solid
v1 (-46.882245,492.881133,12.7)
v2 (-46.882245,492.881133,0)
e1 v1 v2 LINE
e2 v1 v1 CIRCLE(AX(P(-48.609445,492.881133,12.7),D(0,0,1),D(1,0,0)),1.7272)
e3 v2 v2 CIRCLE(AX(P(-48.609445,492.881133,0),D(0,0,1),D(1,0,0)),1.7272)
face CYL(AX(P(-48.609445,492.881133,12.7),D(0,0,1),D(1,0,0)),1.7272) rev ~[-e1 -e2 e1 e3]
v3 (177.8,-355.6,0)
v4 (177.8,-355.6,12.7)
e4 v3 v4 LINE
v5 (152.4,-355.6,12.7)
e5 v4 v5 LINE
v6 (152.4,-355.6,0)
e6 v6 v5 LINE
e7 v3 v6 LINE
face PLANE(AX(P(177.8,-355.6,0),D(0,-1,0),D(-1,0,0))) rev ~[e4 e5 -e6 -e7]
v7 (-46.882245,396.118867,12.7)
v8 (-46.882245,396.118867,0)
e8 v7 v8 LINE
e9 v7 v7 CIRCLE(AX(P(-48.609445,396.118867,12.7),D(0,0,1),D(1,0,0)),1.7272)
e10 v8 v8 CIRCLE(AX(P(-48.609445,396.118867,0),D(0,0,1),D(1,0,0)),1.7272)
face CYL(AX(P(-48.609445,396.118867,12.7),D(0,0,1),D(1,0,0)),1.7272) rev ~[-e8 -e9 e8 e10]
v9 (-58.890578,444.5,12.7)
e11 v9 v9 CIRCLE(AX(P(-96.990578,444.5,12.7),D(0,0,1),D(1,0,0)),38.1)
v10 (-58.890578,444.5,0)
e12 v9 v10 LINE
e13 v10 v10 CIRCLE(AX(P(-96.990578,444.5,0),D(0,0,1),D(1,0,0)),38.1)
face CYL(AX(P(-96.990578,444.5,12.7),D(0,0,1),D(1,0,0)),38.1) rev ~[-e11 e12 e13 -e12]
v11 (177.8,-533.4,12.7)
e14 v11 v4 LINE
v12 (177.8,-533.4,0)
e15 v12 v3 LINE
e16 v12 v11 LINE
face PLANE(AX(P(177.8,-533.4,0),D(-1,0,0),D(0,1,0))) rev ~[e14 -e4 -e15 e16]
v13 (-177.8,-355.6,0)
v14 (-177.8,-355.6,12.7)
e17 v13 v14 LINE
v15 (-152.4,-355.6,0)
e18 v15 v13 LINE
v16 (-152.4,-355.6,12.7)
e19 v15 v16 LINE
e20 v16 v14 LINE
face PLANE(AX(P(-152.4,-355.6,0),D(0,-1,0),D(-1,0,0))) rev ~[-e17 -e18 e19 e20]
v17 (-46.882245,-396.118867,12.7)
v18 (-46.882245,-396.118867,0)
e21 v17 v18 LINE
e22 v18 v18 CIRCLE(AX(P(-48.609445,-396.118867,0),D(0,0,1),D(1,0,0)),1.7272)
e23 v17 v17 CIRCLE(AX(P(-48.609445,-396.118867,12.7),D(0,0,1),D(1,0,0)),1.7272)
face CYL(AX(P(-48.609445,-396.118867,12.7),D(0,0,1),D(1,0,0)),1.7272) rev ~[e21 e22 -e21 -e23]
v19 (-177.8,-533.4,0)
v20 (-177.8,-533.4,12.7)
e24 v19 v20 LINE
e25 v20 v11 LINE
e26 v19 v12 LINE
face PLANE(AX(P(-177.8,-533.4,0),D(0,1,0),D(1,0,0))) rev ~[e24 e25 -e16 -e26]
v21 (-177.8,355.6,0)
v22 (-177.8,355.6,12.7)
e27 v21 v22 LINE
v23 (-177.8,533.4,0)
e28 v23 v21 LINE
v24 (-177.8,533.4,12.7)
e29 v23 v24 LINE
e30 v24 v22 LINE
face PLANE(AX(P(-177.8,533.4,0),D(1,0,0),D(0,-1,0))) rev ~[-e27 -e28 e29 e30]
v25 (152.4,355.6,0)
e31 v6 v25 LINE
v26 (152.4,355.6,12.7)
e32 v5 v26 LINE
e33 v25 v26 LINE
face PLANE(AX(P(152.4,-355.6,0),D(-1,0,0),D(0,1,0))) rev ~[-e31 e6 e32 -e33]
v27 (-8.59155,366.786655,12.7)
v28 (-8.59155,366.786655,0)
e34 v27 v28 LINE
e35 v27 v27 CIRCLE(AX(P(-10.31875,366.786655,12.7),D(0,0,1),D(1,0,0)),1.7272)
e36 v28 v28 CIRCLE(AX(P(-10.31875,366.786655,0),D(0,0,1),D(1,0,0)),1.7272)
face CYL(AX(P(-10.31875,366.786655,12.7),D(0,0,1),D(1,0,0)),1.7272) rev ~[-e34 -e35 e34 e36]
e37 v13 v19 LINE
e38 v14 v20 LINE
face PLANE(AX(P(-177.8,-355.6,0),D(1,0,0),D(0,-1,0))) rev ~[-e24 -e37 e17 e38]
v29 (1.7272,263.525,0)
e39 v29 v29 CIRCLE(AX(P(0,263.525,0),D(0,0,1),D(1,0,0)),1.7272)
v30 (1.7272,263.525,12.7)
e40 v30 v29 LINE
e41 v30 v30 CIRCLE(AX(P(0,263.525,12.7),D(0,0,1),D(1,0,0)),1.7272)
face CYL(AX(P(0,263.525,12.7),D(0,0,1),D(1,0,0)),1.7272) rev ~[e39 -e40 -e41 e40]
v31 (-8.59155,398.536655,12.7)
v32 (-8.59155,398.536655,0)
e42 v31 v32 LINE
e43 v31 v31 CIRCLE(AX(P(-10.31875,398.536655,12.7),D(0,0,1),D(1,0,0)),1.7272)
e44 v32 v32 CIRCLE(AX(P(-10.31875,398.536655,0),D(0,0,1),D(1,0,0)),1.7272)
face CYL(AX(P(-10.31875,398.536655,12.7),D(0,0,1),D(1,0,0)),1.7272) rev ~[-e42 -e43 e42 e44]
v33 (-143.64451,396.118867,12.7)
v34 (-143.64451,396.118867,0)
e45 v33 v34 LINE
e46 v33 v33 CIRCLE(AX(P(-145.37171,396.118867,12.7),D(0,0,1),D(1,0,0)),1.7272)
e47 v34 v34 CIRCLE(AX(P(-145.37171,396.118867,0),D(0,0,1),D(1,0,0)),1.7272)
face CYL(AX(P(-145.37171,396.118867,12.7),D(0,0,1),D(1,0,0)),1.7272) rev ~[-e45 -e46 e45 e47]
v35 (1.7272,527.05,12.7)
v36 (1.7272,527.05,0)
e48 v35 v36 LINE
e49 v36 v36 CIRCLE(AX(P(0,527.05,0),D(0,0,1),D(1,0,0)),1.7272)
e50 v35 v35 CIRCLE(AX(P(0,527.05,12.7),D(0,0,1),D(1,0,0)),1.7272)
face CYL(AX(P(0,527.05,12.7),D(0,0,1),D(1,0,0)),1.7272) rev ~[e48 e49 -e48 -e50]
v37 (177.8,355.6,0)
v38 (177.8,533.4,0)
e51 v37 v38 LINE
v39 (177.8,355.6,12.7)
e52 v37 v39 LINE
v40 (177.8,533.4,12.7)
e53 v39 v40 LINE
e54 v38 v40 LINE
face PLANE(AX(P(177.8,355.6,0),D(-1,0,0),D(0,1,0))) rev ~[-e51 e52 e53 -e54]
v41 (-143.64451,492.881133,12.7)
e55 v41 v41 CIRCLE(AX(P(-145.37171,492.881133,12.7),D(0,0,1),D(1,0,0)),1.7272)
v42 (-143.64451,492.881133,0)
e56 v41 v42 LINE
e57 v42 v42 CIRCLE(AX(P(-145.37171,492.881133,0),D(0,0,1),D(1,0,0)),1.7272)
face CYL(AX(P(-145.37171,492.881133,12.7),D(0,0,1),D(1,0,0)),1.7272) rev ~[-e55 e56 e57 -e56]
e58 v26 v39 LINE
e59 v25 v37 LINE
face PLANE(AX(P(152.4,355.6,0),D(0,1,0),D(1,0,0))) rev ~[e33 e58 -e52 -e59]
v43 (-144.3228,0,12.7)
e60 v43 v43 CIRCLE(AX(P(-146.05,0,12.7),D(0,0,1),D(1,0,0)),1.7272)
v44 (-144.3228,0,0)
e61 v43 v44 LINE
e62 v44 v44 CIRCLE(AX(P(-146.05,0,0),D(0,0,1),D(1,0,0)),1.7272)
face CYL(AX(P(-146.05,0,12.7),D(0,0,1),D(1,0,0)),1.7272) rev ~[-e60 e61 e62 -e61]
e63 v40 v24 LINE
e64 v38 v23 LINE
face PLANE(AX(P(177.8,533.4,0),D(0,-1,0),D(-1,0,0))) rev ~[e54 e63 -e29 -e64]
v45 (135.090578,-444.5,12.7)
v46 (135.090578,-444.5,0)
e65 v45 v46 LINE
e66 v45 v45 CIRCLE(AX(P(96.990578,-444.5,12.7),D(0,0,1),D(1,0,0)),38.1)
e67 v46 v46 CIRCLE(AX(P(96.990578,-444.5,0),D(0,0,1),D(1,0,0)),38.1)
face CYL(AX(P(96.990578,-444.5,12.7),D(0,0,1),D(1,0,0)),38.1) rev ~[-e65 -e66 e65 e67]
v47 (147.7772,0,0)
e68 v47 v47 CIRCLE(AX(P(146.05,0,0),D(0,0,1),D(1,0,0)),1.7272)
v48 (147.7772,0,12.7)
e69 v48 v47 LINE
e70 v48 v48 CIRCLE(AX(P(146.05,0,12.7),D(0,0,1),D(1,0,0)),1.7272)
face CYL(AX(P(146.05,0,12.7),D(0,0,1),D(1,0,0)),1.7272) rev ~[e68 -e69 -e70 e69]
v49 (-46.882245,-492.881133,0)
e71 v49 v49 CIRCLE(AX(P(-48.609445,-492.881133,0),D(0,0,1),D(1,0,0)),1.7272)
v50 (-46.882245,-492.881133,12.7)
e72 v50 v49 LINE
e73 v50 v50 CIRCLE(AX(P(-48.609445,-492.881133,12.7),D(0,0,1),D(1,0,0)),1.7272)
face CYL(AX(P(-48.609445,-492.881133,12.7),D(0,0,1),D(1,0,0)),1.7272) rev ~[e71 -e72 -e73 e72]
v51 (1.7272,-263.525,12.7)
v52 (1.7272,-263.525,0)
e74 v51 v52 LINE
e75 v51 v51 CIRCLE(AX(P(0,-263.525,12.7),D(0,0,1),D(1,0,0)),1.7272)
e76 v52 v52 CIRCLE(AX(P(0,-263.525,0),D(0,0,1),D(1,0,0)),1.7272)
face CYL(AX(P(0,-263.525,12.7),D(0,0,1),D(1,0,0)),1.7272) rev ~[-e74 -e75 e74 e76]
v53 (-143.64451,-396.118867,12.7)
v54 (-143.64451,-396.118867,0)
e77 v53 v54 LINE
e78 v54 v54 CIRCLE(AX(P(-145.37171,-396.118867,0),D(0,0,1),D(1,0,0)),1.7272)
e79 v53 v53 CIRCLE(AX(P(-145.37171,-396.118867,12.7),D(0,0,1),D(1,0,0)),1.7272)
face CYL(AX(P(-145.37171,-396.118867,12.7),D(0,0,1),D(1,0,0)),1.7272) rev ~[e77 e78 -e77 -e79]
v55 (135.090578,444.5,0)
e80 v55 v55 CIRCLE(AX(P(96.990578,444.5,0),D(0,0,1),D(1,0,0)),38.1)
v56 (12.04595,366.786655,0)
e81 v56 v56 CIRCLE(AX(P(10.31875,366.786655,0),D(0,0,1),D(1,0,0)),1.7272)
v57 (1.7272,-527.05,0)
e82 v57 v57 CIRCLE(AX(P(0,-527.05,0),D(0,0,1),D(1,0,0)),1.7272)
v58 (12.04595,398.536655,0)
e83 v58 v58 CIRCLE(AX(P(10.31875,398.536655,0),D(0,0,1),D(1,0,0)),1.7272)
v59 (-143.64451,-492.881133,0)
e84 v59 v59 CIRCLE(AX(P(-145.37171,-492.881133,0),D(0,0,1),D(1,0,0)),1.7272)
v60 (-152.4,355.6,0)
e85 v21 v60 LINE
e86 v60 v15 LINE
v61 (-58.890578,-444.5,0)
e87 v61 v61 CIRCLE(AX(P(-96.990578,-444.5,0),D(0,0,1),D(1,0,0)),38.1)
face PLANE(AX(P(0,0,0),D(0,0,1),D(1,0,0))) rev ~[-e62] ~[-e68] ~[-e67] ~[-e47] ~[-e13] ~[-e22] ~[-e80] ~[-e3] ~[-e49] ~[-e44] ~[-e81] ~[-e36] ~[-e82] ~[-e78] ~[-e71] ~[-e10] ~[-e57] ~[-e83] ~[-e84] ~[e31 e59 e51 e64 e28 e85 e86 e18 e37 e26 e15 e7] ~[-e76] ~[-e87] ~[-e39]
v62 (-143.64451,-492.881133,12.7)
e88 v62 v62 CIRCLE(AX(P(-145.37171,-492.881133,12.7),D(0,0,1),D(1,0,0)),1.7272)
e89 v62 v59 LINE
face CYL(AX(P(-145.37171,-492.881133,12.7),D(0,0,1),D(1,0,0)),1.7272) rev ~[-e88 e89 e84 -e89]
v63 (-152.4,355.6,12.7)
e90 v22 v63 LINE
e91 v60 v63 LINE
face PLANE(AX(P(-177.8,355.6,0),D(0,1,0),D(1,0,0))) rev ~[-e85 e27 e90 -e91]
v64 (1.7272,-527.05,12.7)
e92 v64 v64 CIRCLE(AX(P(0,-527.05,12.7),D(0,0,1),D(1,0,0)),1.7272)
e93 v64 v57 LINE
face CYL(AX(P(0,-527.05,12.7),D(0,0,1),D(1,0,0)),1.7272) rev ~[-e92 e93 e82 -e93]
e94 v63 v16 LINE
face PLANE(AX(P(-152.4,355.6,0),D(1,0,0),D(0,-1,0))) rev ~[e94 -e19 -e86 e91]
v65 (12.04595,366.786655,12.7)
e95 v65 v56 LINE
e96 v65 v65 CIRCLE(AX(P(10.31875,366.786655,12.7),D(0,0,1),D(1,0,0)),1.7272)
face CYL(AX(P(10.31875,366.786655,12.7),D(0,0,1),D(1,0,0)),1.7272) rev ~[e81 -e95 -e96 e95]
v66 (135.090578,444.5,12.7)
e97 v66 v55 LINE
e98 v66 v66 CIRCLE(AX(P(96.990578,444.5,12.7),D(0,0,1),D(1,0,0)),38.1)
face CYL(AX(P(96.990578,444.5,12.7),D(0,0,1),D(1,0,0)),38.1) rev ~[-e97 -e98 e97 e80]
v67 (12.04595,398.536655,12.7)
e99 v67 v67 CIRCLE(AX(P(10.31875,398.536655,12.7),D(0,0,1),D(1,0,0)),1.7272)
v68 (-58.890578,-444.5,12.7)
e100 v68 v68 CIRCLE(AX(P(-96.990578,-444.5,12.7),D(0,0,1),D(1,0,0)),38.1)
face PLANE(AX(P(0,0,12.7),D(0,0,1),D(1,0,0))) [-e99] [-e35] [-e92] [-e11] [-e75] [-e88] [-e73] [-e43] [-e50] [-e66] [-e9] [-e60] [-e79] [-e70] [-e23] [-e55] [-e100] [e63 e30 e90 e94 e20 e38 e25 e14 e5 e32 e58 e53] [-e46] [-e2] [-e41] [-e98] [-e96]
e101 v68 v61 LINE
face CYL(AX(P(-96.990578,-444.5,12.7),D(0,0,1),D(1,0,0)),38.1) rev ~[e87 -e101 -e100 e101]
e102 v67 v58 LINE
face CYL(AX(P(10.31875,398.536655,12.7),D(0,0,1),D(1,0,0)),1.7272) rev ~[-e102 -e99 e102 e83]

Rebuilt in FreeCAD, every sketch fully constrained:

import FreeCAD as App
import Part
import Sketcher
Q = App.Units.Quantity

doc = App.newDocument("Part")
params = doc.addObject("Spreadsheet::Sheet", "Params")
for row, (alias, value) in enumerate([
    ("sketch1_width", "1 in"),
    ("sketch1_width2", "14 in"),
    ("sketch1_height", "28 in"),
    ("sketch1_height2", "7 in"),
    ("pad1_length", "0.5 in"),
    ("sketch2_diameter", "3 in"),
    ("sketch2_diameter2", "0.136 in"),
    ("sketch3_diameter", "0.136 in"),
], start=1):
    params.set(f"A{row}", alias)
    params.set(f"B{row}", "=" + value)
    params.setAlias(f"B{row}", alias)

body = doc.addObject("PartDesign::Body", "Body")

# Sketch on XY plane
sketch1 = doc.addObject("Sketcher::SketchObject", "Sketch")
body.addObject(sketch1)
sketch1.AttachmentSupport = (doc.XY_Plane, [""])
sketch1.MapMode = "FlatFace"
sketch1.addGeometry(Part.LineSegment(App.Vector(-152, 356, 0), App.Vector(-152, -356, 0)), False)
sketch1.addGeometry(Part.LineSegment(App.Vector(-152, -356, 0), App.Vector(-178, -356, 0)), False)
sketch1.addGeometry(Part.LineSegment(App.Vector(-178, -356, 0), App.Vector(-178, -533, 0)), False)
sketch1.addGeometry(Part.LineSegment(App.Vector(-178, -533, 0), App.Vector(178, -533, 0)), False)
sketch1.addGeometry(Part.LineSegment(App.Vector(178, -533, 0), App.Vector(178, -356, 0)), False)
sketch1.addGeometry(Part.LineSegment(App.Vector(178, -356, 0), App.Vector(152, -356, 0)), False)
sketch1.addGeometry(Part.LineSegment(App.Vector(152, -356, 0), App.Vector(152, 356, 0)), False)
sketch1.addGeometry(Part.LineSegment(App.Vector(152, 356, 0), App.Vector(178, 356, 0)), False)
sketch1.addGeometry(Part.LineSegment(App.Vector(178, 356, 0), App.Vector(178, 533, 0)), False)
sketch1.addGeometry(Part.LineSegment(App.Vector(178, 533, 0), App.Vector(-178, 533, 0)), False)
sketch1.addGeometry(Part.LineSegment(App.Vector(-178, 533, 0), App.Vector(-178, 356, 0)), False)
sketch1.addGeometry(Part.LineSegment(App.Vector(-178, 356, 0), App.Vector(-152, 356, 0)), False)
sketch1.addConstraint(Sketcher.Constraint("Coincident", 0, 2, 1, 1))
sketch1.addConstraint(Sketcher.Constraint("Coincident", 1, 2, 2, 1))
sketch1.addConstraint(Sketcher.Constraint("Coincident", 2, 2, 3, 1))
sketch1.addConstraint(Sketcher.Constraint("Coincident", 3, 2, 4, 1))
sketch1.addConstraint(Sketcher.Constraint("Coincident", 4, 2, 5, 1))
sketch1.addConstraint(Sketcher.Constraint("Coincident", 5, 2, 6, 1))
sketch1.addConstraint(Sketcher.Constraint("Coincident", 6, 2, 7, 1))
sketch1.addConstraint(Sketcher.Constraint("Coincident", 7, 2, 8, 1))
sketch1.addConstraint(Sketcher.Constraint("Coincident", 8, 2, 9, 1))
sketch1.addConstraint(Sketcher.Constraint("Coincident", 9, 2, 10, 1))
sketch1.addConstraint(Sketcher.Constraint("Coincident", 10, 2, 11, 1))
sketch1.addConstraint(Sketcher.Constraint("Coincident", 11, 2, 0, 1))
sketch1.addConstraint(Sketcher.Constraint("Vertical", 0))
sketch1.addConstraint(Sketcher.Constraint("Horizontal", 1))
sketch1.addConstraint(Sketcher.Constraint("Vertical", 2))
sketch1.addConstraint(Sketcher.Constraint("Horizontal", 3))
sketch1.addConstraint(Sketcher.Constraint("Vertical", 4))
sketch1.addConstraint(Sketcher.Constraint("Horizontal", 5))
sketch1.addConstraint(Sketcher.Constraint("Vertical", 6))
sketch1.addConstraint(Sketcher.Constraint("Horizontal", 7))
sketch1.addConstraint(Sketcher.Constraint("Vertical", 8))
sketch1.addConstraint(Sketcher.Constraint("Horizontal", 9))
sketch1.addConstraint(Sketcher.Constraint("Vertical", 10))
sketch1.addConstraint(Sketcher.Constraint("Horizontal", 11))
sketch1.addConstraint(Sketcher.Constraint("Symmetric", 0, 2, 6, 2, -1, 1))
sketch1.addConstraint(Sketcher.Constraint("Symmetric", 2, 2, 8, 2, -1, 1))
sketch1.addConstraint(Sketcher.Constraint("Symmetric", 4, 2, 10, 2, -1, 1))
sketch1.addConstraint(Sketcher.Constraint("Symmetric", 1, 2, 4, 2, -2))
sketch1.addConstraint(Sketcher.Constraint("DistanceX", 1, 2, 1, 1, Q("1 in")))
sketch1.addConstraint(Sketcher.Constraint("DistanceX", 3, 1, 3, 2, Q("14 in")))
sketch1.addConstraint(Sketcher.Constraint("DistanceY", 0, 2, 0, 1, Q("28 in")))
sketch1.addConstraint(Sketcher.Constraint("DistanceY", 2, 2, 2, 1, Q("7 in")))
sketch1.setExpression("Constraints[28]", "Params.sketch1_width")
sketch1.setExpression("Constraints[29]", "Params.sketch1_width2")
sketch1.setExpression("Constraints[30]", "Params.sketch1_height")
sketch1.setExpression("Constraints[31]", "Params.sketch1_height2")
pad1 = doc.addObject("PartDesign::Pad", "Pad")
body.addObject(pad1)
pad1.Profile = sketch1
pad1.setExpression("Length", "Params.pad1_length")

# Sketch on XY plane
sketch2 = doc.addObject("Sketcher::SketchObject", "Sketch001")
body.addObject(sketch2)
sketch2.AttachmentSupport = (doc.XY_Plane, [""])
sketch2.MapMode = "FlatFace"
sketch2.AttachmentOffset = App.Placement(App.Vector(0, 0, 0.5 * 25.4), App.Rotation())
sketch2.addGeometry(Part.Circle(App.Vector(-145.4, 492.9, 0), App.Vector(0, 0, 1), 1.7), False)
sketch2.addGeometry(Part.Circle(App.Vector(-48.6, 492.9, 0), App.Vector(0, 0, 1), 1.7), False)
sketch2.addGeometry(Part.Circle(App.Vector(-145.4, 396.1, 0), App.Vector(0, 0, 1), 1.7), False)
sketch2.addGeometry(Part.Circle(App.Vector(-48.6, 396.1, 0), App.Vector(0, 0, 1), 1.7), False)
sketch2.addGeometry(Part.Circle(App.Vector(-145.4, -492.9, 0), App.Vector(0, 0, 1), 1.7), False)
sketch2.addGeometry(Part.Circle(App.Vector(-145.4, -396.1, 0), App.Vector(0, 0, 1), 1.7), False)
sketch2.addGeometry(Part.Circle(App.Vector(-48.6, -492.9, 0), App.Vector(0, 0, 1), 1.7), False)
sketch2.addGeometry(Part.Circle(App.Vector(-48.6, -396.1, 0), App.Vector(0, 0, 1), 1.7), False)
sketch2.addGeometry(Part.Circle(App.Vector(-97, -444.5, 0), App.Vector(0, 0, 1), 38.1), False)
sketch2.addGeometry(Part.Circle(App.Vector(97, -444.5, 0), App.Vector(0, 0, 1), 38.1), False)
sketch2.addGeometry(Part.Circle(App.Vector(-97, 444.5, 0), App.Vector(0, 0, 1), 38.1), False)
sketch2.addGeometry(Part.Circle(App.Vector(97, 444.5, 0), App.Vector(0, 0, 1), 38.1), False)
sketch2.addGeometry(Part.Circle(App.Vector(-10.3, 366.8, 0), App.Vector(0, 0, 1), 1.7), False)
sketch2.addGeometry(Part.Circle(App.Vector(10.3, 398.5, 0), App.Vector(0, 0, 1), 1.7), False)
sketch2.addGeometry(Part.Circle(App.Vector(10.3, 366.8, 0), App.Vector(0, 0, 1), 1.7), False)
sketch2.addGeometry(Part.Circle(App.Vector(-10.3, 398.5, 0), App.Vector(0, 0, 1), 1.7), False)
sketch2.addConstraint(Sketcher.Constraint("Equal", 0, 1))
sketch2.addConstraint(Sketcher.Constraint("Equal", 1, 2))
sketch2.addConstraint(Sketcher.Constraint("Equal", 2, 3))
sketch2.addConstraint(Sketcher.Constraint("Equal", 3, 4))
sketch2.addConstraint(Sketcher.Constraint("Equal", 4, 5))
sketch2.addConstraint(Sketcher.Constraint("Equal", 5, 6))
sketch2.addConstraint(Sketcher.Constraint("Equal", 6, 7))
sketch2.addConstraint(Sketcher.Constraint("Equal", 8, 9))
sketch2.addConstraint(Sketcher.Constraint("Equal", 9, 10))
sketch2.addConstraint(Sketcher.Constraint("Equal", 10, 11))
sketch2.addConstraint(Sketcher.Constraint("Equal", 7, 12))
sketch2.addConstraint(Sketcher.Constraint("Equal", 12, 13))
sketch2.addConstraint(Sketcher.Constraint("Equal", 13, 14))
sketch2.addConstraint(Sketcher.Constraint("Equal", 14, 15))
sketch2.addConstraint(Sketcher.Constraint("Symmetric", 9, 3, 10, 3, -1, 1))
sketch2.addConstraint(Sketcher.Constraint("Symmetric", 8, 3, 11, 3, -1, 1))
sketch2.addConstraint(Sketcher.Constraint("Symmetric", 8, 3, 9, 3, -2))
sketch2.addConstraint(Sketcher.Constraint("Symmetric", 12, 3, 14, 3, -2))
sketch2.addConstraint(Sketcher.Constraint("Symmetric", 13, 3, 15, 3, -2))
sketch2.addConstraint(Sketcher.Constraint("Symmetric", 0, 3, 4, 3, -1))
sketch2.addConstraint(Sketcher.Constraint("Symmetric", 2, 3, 5, 3, -1))
sketch2.addConstraint(Sketcher.Constraint("Symmetric", 1, 3, 6, 3, -1))
sketch2.addConstraint(Sketcher.Constraint("Symmetric", 3, 3, 7, 3, -1))
sketch2.addConstraint(Sketcher.Constraint("Horizontal", 0, 3, 1, 3))
sketch2.addConstraint(Sketcher.Constraint("Horizontal", 2, 3, 3, 3))
sketch2.addConstraint(Sketcher.Constraint("Vertical", 0, 3, 2, 3))
sketch2.addConstraint(Sketcher.Constraint("Vertical", 1, 3, 3, 3))
sketch2.addConstraint(Sketcher.Constraint("Vertical", 13, 3, 14, 3))
sketch2.addConstraint(Sketcher.Constraint("Diameter", 8, Q("3 in")))
sketch2.addConstraint(Sketcher.Constraint("Diameter", 0, Q("0.136 in")))
sketch2.addConstraint(Sketcher.Constraint("DistanceY", 4, 3, 2, 3, Q("35 in")))
sketch2.addConstraint(Sketcher.Constraint("DistanceY", 8, 3, -1, 1, Q("17.5 in")))
sketch2.addConstraint(Sketcher.Constraint("DistanceY", 12, 3, 13, 3, Q("1.25 in")))
sketch2.addConstraint(Sketcher.Constraint("DistanceX", 12, 3, -1, 1, Q("0.40625 in")))
sketch2.addConstraint(Sketcher.Constraint("DistanceX", 0, 3, -1, 1, Q("145.37171 mm")))
sketch2.addConstraint(Sketcher.Constraint("DistanceX", 8, 3, -1, 1, Q("96.990578 mm")))
sketch2.addConstraint(Sketcher.Constraint("DistanceY", -1, 1, 0, 3, Q("492.881133 mm")))
sketch2.addConstraint(Sketcher.Constraint("DistanceX", 1, 3, -1, 1, Q("48.609445 mm")))
sketch2.addConstraint(Sketcher.Constraint("DistanceY", -1, 1, 12, 3, Q("366.786655 mm")))
sketch2.setExpression("Constraints[28]", "Params.sketch2_diameter")
sketch2.setExpression("Constraints[29]", "Params.sketch2_diameter2")
pocket1 = doc.addObject("PartDesign::Pocket", "Pocket")
body.addObject(pocket1)
pocket1.Profile = sketch2
pocket1.Type = "ThroughAll"

# Sketch on XY plane
sketch3 = doc.addObject("Sketcher::SketchObject", "Sketch002")
body.addObject(sketch3)
sketch3.AttachmentSupport = (doc.XY_Plane, [""])
sketch3.MapMode = "FlatFace"
sketch3.AttachmentOffset = App.Placement(App.Vector(0, 0, 0.5 * 25.4), App.Rotation())
sketch3.addGeometry(Part.Circle(App.Vector(0, 263.5, 0), App.Vector(0, 0, 1), 1.7), False)
sketch3.addGeometry(Part.Circle(App.Vector(-146.1, 0, 0), App.Vector(0, 0, 1), 1.7), False)
sketch3.addGeometry(Part.Circle(App.Vector(146.1, 0, 0), App.Vector(0, 0, 1), 1.7), False)
sketch3.addGeometry(Part.Circle(App.Vector(0, 527, 0), App.Vector(0, 0, 1), 1.7), False)
sketch3.addGeometry(Part.Circle(App.Vector(0, -263.5, 0), App.Vector(0, 0, 1), 1.7), False)
sketch3.addGeometry(Part.Circle(App.Vector(0, -527, 0), App.Vector(0, 0, 1), 1.7), False)
sketch3.addConstraint(Sketcher.Constraint("Equal", 0, 1))
sketch3.addConstraint(Sketcher.Constraint("Equal", 1, 2))
sketch3.addConstraint(Sketcher.Constraint("Equal", 2, 3))
sketch3.addConstraint(Sketcher.Constraint("Equal", 3, 4))
sketch3.addConstraint(Sketcher.Constraint("Equal", 4, 5))
sketch3.addConstraint(Sketcher.Constraint("Symmetric", 1, 3, 2, 3, -1, 1))
sketch3.addConstraint(Sketcher.Constraint("Symmetric", 0, 3, 4, 3, -1, 1))
sketch3.addConstraint(Sketcher.Constraint("Symmetric", 3, 3, 5, 3, -1, 1))
sketch3.addConstraint(Sketcher.Constraint("PointOnObject", 0, 3, -2))
sketch3.addConstraint(Sketcher.Constraint("PointOnObject", 1, 3, -1))
sketch3.addConstraint(Sketcher.Constraint("PointOnObject", 3, 3, -2))
sketch3.addConstraint(Sketcher.Constraint("Diameter", 0, Q("0.136 in")))
sketch3.addConstraint(Sketcher.Constraint("DistanceX", 1, 3, 2, 3, Q("11.5 in")))
sketch3.addConstraint(Sketcher.Constraint("DistanceY", 5, 3, 3, 3, Q("41.5 in")))
sketch3.addConstraint(Sketcher.Constraint("DistanceY", 4, 3, 0, 3, Q("20.75 in")))
sketch3.setExpression("Constraints[11]", "Params.sketch3_diameter")
pocket2 = doc.addObject("PartDesign::Pocket", "Pocket001")
body.addObject(pocket2)
pocket2.Profile = sketch3
pocket2.Type = "ThroughAll"

doc.recompute()
